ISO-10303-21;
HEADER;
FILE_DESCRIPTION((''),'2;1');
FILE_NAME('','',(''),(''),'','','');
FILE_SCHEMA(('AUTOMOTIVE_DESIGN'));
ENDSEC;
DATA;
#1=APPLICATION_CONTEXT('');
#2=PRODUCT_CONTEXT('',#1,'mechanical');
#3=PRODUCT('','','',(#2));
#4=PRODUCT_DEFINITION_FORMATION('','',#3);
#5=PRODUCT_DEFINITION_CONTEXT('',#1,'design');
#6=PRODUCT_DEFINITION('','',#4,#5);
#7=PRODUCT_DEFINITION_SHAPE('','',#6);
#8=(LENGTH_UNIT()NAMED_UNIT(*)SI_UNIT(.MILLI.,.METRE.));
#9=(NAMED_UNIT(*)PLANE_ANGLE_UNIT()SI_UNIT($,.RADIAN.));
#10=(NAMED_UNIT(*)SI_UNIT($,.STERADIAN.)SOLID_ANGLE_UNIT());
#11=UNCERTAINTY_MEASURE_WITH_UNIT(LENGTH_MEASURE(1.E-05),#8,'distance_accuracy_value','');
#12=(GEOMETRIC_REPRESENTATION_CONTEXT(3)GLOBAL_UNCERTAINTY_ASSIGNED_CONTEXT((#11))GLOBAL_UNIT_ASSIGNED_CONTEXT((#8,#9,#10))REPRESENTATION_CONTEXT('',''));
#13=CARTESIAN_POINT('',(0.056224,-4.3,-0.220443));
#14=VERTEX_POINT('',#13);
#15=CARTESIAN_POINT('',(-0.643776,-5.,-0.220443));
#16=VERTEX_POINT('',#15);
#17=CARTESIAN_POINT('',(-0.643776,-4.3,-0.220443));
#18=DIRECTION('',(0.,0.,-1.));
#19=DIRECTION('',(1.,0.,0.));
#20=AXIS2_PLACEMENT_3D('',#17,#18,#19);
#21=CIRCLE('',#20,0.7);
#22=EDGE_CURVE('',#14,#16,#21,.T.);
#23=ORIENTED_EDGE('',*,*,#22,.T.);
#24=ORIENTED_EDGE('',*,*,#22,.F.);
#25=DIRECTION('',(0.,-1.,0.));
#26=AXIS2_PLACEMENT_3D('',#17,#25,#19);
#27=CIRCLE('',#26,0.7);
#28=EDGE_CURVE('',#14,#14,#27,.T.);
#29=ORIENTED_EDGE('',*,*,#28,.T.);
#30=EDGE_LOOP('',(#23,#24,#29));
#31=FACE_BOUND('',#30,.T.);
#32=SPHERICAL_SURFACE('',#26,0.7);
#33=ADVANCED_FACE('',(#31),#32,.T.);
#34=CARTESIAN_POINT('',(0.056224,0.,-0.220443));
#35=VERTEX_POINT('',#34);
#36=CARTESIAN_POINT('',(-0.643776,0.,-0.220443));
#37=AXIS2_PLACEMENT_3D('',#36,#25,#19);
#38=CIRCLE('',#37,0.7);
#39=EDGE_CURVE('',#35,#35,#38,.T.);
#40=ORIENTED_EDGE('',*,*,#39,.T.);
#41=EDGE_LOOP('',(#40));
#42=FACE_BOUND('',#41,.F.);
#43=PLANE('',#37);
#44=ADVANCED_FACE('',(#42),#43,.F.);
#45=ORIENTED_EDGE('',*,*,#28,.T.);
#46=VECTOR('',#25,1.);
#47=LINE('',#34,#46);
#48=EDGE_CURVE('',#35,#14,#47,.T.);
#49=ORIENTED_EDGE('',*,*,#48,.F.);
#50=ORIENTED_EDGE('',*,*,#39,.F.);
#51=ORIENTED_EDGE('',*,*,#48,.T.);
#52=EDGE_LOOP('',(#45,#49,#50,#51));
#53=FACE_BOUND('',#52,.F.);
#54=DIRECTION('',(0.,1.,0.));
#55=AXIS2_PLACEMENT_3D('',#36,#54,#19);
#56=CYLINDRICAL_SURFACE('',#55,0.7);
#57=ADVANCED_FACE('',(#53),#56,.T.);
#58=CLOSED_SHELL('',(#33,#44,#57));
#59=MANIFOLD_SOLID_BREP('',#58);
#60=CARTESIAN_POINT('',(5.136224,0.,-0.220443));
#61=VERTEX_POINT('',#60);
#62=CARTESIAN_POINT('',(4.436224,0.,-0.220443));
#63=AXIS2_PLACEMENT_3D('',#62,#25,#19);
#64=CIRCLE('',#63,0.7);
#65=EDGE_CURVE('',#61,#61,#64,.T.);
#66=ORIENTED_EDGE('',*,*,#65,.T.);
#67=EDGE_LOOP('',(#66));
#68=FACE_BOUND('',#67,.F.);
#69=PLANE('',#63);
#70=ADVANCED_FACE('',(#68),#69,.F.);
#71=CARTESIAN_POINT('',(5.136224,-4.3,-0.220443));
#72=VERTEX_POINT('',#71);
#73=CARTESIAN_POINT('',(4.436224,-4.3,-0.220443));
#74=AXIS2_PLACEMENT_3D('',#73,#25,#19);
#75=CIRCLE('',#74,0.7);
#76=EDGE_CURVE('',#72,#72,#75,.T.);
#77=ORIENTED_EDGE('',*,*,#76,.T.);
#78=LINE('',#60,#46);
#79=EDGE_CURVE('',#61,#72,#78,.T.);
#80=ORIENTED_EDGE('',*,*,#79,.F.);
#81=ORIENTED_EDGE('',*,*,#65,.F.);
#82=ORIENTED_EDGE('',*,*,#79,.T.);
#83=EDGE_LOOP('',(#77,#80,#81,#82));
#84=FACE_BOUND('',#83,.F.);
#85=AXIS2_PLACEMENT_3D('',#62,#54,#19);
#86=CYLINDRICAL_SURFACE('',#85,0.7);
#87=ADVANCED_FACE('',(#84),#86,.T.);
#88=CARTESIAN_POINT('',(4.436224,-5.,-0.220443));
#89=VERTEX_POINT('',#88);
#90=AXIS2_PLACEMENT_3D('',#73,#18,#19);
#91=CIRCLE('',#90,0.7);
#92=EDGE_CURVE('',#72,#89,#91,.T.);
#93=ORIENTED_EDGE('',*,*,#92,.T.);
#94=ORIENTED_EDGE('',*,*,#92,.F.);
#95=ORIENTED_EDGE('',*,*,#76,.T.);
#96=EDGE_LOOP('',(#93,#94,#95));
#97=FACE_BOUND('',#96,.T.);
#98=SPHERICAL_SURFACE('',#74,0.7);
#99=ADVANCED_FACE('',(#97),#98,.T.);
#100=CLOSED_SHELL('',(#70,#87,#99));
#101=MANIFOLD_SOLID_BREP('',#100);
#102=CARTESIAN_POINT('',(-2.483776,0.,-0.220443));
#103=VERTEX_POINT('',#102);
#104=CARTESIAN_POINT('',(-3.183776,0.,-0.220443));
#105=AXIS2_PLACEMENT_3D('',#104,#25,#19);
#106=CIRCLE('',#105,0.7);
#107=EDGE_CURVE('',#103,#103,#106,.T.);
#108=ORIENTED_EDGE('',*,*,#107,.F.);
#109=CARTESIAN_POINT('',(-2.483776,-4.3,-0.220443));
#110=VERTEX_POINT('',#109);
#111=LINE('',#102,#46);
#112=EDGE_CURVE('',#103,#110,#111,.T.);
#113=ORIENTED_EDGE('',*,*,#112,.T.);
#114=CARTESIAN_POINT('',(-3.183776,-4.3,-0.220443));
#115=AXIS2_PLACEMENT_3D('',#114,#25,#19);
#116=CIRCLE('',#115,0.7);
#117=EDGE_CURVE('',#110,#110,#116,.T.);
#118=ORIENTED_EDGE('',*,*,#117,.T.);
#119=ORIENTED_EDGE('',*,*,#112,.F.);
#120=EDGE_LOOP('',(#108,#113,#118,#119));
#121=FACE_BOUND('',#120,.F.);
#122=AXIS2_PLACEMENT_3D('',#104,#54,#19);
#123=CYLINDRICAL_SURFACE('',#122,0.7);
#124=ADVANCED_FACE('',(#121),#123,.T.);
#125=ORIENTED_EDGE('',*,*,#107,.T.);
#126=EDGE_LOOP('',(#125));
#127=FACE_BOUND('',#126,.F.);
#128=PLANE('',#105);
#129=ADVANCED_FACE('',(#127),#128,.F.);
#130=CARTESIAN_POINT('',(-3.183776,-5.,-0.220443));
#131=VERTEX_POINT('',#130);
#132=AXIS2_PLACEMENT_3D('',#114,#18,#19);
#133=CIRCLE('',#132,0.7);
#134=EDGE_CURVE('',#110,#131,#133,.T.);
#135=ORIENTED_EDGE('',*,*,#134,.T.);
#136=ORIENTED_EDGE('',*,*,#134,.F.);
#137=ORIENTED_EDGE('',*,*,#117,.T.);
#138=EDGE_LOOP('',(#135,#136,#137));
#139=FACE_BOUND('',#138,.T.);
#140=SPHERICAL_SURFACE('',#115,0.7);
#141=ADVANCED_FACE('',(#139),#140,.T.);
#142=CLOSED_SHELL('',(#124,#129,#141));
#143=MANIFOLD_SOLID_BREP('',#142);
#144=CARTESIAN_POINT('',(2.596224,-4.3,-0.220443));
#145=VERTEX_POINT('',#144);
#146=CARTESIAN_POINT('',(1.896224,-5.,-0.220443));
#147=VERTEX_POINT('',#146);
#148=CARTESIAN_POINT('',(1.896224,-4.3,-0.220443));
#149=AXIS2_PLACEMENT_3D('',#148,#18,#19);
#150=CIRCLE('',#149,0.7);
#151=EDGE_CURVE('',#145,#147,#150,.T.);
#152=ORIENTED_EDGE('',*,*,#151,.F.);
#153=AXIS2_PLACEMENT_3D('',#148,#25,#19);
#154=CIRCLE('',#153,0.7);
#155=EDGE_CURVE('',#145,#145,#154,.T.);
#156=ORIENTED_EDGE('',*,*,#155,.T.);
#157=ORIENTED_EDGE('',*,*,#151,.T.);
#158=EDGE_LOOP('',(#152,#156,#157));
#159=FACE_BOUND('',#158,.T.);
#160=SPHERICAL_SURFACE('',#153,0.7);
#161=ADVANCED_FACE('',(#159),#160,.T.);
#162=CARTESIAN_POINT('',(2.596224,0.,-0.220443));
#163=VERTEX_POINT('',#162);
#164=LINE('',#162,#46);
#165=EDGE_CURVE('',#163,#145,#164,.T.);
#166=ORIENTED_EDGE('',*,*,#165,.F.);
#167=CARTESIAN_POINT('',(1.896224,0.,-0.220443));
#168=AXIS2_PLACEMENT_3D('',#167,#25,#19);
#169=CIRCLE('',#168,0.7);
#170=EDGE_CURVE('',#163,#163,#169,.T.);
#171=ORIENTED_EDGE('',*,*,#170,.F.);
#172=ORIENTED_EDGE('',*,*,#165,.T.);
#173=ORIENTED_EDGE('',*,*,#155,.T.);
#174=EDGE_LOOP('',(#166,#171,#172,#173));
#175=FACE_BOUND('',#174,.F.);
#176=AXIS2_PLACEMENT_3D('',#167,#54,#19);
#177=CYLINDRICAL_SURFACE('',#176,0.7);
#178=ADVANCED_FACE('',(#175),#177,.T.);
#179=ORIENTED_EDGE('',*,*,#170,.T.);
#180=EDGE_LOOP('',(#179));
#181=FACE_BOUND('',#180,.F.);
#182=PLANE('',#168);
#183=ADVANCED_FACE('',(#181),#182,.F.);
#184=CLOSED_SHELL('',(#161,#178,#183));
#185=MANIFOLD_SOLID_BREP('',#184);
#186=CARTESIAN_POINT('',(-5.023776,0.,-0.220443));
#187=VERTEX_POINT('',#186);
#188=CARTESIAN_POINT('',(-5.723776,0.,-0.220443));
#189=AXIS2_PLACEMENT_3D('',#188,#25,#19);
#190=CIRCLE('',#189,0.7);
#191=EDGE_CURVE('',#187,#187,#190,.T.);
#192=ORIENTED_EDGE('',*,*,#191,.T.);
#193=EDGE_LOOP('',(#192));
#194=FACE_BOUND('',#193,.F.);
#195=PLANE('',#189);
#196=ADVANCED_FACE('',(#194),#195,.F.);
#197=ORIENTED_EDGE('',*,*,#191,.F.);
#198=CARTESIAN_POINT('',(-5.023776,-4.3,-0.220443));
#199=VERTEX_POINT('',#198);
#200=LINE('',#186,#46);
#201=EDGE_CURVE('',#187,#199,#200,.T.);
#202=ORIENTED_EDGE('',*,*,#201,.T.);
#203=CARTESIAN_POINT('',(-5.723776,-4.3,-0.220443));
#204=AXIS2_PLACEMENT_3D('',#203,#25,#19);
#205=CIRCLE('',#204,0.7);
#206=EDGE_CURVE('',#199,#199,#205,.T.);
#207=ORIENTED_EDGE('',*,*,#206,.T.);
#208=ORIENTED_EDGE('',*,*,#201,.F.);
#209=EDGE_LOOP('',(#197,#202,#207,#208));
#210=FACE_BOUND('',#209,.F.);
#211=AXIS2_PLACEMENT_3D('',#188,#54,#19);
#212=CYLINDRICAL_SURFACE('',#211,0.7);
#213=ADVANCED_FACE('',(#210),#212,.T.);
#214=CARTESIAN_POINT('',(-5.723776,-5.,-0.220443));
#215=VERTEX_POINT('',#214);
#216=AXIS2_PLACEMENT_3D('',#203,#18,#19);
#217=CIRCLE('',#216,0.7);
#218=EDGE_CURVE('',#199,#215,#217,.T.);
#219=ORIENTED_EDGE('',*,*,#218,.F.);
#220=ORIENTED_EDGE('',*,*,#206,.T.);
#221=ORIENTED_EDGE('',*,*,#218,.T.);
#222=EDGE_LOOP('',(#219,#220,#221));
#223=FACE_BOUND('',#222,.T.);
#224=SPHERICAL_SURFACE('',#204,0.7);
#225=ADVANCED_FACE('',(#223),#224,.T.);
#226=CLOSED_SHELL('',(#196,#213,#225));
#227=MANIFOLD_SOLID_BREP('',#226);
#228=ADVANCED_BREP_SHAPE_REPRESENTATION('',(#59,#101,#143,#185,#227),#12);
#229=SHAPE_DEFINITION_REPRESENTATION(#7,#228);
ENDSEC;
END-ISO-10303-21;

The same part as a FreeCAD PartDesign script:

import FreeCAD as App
import Part
import Sketcher

V = App.Vector
Q = App.Units.Quantity


def edges_at(feature, points):
    """Names of the edges that pass closest to the given points."""
    edges = feature.Shape.Edges
    near = lambda p: min(range(len(edges)), key=lambda i: edges[i].distToShape(Part.Vertex(*p))[0])
    return sorted({f"Edge{near(p) + 1}" for p in points})

doc = App.newDocument("Part")
body = doc.addObject("PartDesign::Body", "Body")
body.AllowCompound = True

sketch1 = body.newObject("Sketcher::SketchObject", "Sketch")
sketch1.AttachmentSupport = (doc.getObject("XZ_Plane"), [""])
sketch1.MapMode = "FlatFace"
sketch1.addGeometry(Part.Circle(V(-5.7, -0.2, 0), V(0, 0, 1), 0.7), False)
sketch1.addGeometry(Part.Circle(V(-3.2, -0.2, 0), V(0, 0, 1), 0.7), False)
sketch1.addGeometry(Part.Circle(V(-0.6, -0.2, 0), V(0, 0, 1), 0.7), False)
sketch1.addGeometry(Part.Circle(V(1.9, -0.2, 0), V(0, 0, 1), 0.7), False)
sketch1.addGeometry(Part.Circle(V(4.4, -0.2, 0), V(0, 0, 1), 0.7), False)
sketch1.addConstraint(Sketcher.Constraint("Equal", 0, 1))
sketch1.addConstraint(Sketcher.Constraint("Equal", 1, 2))
sketch1.addConstraint(Sketcher.Constraint("Equal", 2, 3))
sketch1.addConstraint(Sketcher.Constraint("Equal", 3, 4))
sketch1.addConstraint(Sketcher.Constraint("Horizontal", 0, 3, 1, 3))
sketch1.addConstraint(Sketcher.Constraint("Horizontal", 1, 3, 2, 3))
sketch1.addConstraint(Sketcher.Constraint("Horizontal", 2, 3, 3, 3))
sketch1.addConstraint(Sketcher.Constraint("Horizontal", 3, 3, 4, 3))
sketch1.addConstraint(Sketcher.Constraint("Diameter", 0, Q("1.4 mm")))
sketch1.addConstraint(Sketcher.Constraint("DistanceX", 0, 3, 1, 3, Q("2.54 mm")))
sketch1.addConstraint(Sketcher.Constraint("DistanceX", 1, 3, 2, 3, Q("2.54 mm")))
sketch1.addConstraint(Sketcher.Constraint("DistanceX", 2, 3, 3, 3, Q("2.54 mm")))
sketch1.addConstraint(Sketcher.Constraint("DistanceX", 3, 3, 4, 3, Q("2.54 mm")))
sketch1.addConstraint(Sketcher.Constraint("DistanceX", 0, 3, -1, 1, Q("5.723776 mm")))
sketch1.addConstraint(Sketcher.Constraint("DistanceY", 0, 3, -1, 1, Q("0.220443 mm")))
pad1 = body.newObject("PartDesign::Pad", "Pad")
pad1.Profile = sketch1
pad1.Length = 5
doc.recompute()

fillet = body.newObject("PartDesign::Fillet", "Fillet")
fillet.Base = (pad1, edges_at(pad1, [
    (-6.424, -5, -0.22),
    (-3.884, -5, -0.22),
    (-1.344, -5, -0.22),
    (1.196, -5, -0.22),
    (3.736, -5, -0.22),
]))
fillet.Radius = 0.7

doc.recompute()
